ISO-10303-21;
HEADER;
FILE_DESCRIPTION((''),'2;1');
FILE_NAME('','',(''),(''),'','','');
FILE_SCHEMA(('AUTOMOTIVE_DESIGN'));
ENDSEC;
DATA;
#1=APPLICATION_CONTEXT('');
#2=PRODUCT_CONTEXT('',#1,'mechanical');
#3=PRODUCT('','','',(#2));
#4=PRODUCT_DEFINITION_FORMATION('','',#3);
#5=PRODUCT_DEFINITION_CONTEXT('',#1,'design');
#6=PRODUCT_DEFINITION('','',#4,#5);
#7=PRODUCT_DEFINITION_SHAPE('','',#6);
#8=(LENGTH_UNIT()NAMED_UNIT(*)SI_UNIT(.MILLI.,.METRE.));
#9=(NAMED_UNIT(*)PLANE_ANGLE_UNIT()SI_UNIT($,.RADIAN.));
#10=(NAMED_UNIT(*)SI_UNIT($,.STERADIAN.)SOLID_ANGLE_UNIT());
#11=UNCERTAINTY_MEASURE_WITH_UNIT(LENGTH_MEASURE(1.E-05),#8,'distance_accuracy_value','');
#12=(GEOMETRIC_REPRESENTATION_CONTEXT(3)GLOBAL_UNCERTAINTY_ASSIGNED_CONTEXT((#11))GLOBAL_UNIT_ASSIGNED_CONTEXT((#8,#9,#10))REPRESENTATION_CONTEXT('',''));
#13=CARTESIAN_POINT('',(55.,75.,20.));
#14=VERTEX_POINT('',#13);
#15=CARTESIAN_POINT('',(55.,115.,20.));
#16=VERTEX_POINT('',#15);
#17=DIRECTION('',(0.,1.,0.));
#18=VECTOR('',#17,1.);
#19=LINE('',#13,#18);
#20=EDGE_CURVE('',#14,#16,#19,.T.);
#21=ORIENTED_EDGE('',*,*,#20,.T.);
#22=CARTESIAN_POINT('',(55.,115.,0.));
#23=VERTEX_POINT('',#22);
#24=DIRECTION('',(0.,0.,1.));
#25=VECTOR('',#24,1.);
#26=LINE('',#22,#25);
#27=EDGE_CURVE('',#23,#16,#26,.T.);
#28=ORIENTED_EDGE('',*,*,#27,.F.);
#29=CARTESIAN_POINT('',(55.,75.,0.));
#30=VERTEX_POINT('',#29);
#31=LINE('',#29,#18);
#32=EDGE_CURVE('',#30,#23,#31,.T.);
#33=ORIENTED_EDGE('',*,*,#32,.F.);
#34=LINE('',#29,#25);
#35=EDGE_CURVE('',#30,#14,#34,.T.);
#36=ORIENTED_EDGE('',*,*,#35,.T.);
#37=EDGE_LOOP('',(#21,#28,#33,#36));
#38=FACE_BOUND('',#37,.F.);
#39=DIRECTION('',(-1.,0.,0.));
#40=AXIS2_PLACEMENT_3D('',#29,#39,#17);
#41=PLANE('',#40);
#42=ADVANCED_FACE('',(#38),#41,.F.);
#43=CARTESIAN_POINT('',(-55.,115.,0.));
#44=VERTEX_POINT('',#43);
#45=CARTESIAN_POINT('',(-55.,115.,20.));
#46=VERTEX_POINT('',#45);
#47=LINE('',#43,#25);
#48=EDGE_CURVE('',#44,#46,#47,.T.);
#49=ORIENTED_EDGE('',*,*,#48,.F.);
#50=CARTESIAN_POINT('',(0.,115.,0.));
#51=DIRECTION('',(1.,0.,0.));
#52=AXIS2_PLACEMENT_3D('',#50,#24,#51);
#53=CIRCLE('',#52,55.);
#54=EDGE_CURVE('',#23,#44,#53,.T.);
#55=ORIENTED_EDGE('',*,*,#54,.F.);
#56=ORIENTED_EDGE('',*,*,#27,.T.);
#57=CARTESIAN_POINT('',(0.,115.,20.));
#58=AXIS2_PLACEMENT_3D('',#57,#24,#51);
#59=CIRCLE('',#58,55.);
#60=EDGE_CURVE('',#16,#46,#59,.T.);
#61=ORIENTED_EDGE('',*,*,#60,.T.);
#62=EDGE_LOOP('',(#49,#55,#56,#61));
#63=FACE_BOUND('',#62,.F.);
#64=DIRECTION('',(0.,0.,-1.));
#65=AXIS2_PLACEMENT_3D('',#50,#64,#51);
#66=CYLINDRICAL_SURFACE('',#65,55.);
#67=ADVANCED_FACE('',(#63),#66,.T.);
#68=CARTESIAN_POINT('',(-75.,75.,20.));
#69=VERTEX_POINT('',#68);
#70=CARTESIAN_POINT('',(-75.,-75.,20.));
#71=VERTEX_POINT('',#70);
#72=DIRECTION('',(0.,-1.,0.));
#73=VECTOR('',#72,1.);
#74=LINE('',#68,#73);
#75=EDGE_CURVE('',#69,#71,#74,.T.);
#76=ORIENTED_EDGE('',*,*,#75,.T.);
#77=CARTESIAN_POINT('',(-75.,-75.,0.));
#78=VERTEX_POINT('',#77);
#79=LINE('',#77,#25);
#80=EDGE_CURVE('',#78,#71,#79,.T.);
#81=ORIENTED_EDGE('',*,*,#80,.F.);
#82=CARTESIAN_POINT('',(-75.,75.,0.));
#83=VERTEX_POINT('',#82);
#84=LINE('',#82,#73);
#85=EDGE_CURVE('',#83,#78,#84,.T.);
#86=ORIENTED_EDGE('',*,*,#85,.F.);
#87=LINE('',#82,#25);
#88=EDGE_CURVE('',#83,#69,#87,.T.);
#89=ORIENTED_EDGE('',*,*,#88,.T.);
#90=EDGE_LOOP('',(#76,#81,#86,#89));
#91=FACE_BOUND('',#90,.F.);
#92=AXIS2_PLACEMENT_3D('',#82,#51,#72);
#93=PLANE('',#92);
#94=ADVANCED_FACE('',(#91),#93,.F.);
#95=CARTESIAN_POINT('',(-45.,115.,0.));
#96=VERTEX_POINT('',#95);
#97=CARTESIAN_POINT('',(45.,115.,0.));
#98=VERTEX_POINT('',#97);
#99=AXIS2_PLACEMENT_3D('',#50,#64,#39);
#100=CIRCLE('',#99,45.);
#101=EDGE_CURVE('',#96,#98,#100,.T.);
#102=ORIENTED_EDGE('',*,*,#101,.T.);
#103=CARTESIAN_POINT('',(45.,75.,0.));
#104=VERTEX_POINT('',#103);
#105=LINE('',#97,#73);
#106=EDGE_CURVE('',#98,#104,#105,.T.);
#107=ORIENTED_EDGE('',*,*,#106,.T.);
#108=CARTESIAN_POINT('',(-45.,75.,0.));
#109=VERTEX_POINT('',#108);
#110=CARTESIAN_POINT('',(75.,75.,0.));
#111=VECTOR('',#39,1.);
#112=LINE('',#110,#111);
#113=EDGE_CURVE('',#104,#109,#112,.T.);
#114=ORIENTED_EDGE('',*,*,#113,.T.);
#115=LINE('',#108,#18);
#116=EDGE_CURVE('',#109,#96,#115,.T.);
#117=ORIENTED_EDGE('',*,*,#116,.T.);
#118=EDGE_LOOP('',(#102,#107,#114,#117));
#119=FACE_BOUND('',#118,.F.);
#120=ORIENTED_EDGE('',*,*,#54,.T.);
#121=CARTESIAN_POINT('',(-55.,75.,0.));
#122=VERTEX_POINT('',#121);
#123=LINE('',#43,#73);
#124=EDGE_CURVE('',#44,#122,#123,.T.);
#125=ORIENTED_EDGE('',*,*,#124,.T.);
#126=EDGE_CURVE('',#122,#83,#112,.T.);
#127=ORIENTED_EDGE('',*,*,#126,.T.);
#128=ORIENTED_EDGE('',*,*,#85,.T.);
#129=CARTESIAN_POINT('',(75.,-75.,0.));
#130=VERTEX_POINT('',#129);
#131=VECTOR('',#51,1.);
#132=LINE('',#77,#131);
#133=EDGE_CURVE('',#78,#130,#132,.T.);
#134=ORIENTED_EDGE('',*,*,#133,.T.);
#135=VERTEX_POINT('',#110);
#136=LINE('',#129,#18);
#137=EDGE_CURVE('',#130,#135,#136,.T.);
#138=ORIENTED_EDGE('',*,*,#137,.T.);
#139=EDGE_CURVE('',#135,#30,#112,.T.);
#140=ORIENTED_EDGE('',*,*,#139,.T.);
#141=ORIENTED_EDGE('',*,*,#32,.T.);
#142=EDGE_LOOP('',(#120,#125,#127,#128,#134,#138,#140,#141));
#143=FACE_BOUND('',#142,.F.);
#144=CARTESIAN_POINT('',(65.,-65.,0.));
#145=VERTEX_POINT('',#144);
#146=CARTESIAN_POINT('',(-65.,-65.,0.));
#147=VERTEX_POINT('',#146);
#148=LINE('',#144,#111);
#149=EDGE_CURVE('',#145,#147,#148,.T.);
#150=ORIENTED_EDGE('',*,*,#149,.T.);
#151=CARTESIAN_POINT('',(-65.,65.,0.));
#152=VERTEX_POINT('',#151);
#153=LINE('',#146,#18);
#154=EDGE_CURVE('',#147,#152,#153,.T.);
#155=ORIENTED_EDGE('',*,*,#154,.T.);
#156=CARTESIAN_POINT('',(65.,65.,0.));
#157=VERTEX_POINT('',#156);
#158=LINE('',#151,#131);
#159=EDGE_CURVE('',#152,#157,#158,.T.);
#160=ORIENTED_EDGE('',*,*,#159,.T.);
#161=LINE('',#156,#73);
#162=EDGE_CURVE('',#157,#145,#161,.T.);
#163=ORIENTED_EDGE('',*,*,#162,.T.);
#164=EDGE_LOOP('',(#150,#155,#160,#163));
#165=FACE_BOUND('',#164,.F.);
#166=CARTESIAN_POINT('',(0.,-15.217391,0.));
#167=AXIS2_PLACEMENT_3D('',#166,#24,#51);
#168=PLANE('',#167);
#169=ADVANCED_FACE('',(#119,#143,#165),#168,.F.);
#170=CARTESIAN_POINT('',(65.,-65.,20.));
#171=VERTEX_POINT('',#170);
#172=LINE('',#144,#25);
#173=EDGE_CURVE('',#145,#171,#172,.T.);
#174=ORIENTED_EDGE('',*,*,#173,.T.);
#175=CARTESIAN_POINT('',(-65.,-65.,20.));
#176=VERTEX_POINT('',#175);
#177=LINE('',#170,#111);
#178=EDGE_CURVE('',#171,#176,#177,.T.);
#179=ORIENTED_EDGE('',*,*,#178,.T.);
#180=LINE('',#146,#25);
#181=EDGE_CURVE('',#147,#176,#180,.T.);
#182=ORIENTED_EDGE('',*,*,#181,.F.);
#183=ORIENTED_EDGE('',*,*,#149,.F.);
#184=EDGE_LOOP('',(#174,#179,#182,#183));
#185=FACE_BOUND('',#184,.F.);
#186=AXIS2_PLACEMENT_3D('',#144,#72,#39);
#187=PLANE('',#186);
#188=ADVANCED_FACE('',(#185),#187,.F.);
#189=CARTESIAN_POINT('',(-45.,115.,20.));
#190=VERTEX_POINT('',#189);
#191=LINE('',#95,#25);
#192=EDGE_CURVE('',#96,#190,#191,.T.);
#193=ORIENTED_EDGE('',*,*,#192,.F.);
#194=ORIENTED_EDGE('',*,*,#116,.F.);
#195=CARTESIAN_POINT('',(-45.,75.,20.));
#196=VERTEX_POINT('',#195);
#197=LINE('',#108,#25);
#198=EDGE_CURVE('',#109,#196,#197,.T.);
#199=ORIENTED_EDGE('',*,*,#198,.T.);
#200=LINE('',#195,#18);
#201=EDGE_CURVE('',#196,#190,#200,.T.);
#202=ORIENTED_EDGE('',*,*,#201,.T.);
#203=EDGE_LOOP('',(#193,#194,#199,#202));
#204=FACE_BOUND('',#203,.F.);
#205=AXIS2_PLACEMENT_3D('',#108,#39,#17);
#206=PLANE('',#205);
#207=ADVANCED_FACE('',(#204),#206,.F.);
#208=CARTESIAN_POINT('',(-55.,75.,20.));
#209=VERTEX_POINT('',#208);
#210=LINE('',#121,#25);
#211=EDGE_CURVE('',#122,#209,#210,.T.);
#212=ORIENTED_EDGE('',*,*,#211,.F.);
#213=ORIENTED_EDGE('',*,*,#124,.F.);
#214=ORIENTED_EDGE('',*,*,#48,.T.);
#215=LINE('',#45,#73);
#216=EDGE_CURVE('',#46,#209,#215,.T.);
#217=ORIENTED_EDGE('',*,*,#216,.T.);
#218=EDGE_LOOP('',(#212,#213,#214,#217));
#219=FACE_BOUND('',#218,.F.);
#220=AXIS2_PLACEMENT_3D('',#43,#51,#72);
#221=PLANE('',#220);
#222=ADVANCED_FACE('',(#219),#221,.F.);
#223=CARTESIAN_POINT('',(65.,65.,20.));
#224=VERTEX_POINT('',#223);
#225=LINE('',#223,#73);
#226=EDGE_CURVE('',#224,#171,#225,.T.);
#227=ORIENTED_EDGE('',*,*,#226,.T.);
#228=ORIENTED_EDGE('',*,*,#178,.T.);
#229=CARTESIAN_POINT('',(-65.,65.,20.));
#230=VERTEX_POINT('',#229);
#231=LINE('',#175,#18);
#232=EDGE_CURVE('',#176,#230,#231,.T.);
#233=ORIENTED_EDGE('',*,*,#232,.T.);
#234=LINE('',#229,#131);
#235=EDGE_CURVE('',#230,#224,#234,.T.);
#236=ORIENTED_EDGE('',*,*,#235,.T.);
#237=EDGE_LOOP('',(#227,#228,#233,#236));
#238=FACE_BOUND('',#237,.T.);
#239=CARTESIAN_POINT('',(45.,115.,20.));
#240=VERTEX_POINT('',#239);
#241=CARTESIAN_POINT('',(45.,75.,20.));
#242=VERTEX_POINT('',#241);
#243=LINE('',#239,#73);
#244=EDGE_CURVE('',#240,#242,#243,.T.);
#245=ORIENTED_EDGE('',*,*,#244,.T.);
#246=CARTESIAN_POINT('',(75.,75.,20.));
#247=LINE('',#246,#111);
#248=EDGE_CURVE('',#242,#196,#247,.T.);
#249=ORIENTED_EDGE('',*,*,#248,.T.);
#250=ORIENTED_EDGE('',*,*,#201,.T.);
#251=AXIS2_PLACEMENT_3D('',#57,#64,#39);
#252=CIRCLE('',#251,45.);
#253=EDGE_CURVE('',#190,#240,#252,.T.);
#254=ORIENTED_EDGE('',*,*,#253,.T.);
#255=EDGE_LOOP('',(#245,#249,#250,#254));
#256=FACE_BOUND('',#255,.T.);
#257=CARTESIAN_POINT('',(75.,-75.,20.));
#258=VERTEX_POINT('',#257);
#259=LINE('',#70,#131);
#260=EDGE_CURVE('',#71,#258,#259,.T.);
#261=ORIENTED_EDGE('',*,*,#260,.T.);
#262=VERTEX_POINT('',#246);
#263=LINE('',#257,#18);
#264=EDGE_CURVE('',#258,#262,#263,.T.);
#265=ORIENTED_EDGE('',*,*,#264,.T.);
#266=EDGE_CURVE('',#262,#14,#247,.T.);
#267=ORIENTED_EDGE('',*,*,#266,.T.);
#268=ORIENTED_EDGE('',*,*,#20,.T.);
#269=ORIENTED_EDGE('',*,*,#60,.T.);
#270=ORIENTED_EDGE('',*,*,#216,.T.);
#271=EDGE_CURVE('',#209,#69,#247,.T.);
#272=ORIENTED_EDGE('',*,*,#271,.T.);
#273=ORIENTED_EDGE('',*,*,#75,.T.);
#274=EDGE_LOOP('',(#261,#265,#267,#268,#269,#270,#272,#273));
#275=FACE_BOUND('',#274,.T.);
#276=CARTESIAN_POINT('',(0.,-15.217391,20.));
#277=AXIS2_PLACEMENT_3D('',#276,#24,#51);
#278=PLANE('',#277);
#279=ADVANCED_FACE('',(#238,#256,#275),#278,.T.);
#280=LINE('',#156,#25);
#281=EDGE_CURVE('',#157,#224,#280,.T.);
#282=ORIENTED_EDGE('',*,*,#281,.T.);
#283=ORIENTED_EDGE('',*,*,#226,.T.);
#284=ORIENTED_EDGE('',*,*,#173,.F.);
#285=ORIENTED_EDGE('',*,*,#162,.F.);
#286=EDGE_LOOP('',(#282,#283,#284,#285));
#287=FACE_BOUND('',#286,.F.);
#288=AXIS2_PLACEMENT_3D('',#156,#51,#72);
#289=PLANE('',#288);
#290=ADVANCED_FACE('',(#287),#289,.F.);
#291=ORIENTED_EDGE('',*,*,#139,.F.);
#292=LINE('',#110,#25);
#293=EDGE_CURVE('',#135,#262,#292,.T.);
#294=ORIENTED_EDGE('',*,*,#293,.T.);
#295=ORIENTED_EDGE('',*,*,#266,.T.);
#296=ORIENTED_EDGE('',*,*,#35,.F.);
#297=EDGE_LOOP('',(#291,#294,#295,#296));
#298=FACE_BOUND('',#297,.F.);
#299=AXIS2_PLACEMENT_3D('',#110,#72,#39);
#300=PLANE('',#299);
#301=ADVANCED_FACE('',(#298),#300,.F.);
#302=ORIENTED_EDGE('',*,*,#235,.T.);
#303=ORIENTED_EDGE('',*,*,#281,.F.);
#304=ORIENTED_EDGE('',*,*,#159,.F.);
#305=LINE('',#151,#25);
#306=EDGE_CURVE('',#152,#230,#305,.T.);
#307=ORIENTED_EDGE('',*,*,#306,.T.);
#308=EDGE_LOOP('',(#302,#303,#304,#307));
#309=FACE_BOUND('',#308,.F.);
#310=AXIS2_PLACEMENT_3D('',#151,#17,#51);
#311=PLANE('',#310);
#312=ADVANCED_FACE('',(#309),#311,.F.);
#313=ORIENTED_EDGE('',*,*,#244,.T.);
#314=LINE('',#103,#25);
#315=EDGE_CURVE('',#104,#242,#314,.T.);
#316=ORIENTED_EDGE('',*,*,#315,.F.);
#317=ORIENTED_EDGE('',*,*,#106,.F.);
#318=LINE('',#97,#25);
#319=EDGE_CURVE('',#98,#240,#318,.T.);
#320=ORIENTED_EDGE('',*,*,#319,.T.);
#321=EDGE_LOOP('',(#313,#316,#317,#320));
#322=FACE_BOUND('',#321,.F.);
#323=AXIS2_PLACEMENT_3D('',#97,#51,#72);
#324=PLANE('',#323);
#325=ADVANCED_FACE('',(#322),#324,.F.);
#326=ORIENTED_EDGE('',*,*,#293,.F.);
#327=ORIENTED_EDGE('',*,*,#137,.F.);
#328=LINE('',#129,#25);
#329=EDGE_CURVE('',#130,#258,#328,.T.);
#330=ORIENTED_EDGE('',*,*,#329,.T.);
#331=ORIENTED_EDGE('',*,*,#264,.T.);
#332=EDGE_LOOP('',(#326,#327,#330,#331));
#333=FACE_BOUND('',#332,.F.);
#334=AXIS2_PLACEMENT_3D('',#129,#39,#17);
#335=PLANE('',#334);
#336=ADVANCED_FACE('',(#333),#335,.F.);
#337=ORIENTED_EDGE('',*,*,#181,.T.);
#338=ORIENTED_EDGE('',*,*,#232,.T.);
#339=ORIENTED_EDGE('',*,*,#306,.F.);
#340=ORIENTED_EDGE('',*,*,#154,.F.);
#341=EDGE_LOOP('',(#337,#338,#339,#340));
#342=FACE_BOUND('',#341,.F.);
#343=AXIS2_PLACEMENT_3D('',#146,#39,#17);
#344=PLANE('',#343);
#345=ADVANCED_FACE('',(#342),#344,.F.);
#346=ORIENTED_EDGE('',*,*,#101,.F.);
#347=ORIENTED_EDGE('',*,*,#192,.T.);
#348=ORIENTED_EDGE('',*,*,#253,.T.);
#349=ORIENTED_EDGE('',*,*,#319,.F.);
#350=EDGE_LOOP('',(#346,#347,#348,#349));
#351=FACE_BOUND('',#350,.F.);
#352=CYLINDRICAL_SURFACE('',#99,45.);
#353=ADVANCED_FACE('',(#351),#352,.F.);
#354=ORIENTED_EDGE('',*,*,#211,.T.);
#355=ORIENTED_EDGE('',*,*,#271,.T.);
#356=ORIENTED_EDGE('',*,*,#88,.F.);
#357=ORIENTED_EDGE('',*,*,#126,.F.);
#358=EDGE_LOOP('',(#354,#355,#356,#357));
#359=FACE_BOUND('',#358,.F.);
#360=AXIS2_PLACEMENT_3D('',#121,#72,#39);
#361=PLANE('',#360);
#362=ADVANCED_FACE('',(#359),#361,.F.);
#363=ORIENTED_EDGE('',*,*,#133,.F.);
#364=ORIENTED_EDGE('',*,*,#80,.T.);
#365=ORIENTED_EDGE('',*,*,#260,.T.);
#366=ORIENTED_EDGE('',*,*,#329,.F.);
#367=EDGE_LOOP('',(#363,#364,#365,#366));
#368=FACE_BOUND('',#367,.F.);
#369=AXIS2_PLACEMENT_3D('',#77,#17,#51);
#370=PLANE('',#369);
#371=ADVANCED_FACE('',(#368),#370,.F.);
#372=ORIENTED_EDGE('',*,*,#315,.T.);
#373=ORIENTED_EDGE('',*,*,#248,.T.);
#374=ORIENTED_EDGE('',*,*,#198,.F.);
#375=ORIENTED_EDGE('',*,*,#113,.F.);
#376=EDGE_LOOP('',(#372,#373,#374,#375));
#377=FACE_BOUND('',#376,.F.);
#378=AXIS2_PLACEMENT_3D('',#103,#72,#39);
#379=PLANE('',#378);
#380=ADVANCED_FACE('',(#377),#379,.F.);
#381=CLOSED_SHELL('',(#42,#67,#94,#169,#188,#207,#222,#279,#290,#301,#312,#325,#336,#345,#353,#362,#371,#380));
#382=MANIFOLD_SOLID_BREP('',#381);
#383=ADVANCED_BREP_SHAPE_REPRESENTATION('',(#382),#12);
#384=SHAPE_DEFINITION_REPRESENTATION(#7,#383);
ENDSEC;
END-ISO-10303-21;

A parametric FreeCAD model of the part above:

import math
import FreeCAD as App
import Part
import Sketcher
from FreeCAD import Vector
Q = App.Units.Quantity


def add_polygon(sketch, points):
    """Adds a closed chain of lines whose ends are joined by coincident constraints."""
    first, n = sketch.GeometryCount, len(points)
    for a, b in zip(points, points[1:] + points[:1]):
        sketch.addGeometry(Part.LineSegment(App.Vector(*a, 0), App.Vector(*b, 0)), False)
    for i in range(n):
        sketch.addConstraint(Sketcher.Constraint("Coincident", first + i, 2, first + (i + 1) % n, 1))

doc = App.newDocument("Part")
body = doc.addObject("PartDesign::Body", "Body")

sketch1 = doc.addObject("Sketcher::SketchObject", "Sketch")
body.addObject(sketch1)
sketch1.AttachmentSupport = (doc.XY_Plane, [""])
sketch1.MapMode = "FlatFace"
sketch1.addGeometry(Part.LineSegment(Vector(-75, -75, 0), Vector(75, -75, 0)), False)
sketch1.addGeometry(Part.LineSegment(Vector(75, -75, 0), Vector(75, 75, 0)), False)
sketch1.addGeometry(Part.LineSegment(Vector(75, 75, 0), Vector(55, 75, 0)), False)
sketch1.addGeometry(Part.LineSegment(Vector(55, 75, 0), Vector(55, 115, 0)), False)
sketch1.addGeometry(Part.ArcOfCircle(Part.Circle(Vector(0, 115, 0), Vector(0, 0, 1), 55), math.radians(0), math.radians(180)), False)
sketch1.addGeometry(Part.LineSegment(Vector(-55, 115, 0), Vector(-55, 75, 0)), False)
sketch1.addGeometry(Part.LineSegment(Vector(-55, 75, 0), Vector(-75, 75, 0)), False)
sketch1.addGeometry(Part.LineSegment(Vector(-75, 75, 0), Vector(-75, -75, 0)), False)
sketch1.addGeometry(Part.LineSegment(Vector(45, 115, 0), Vector(45, 75, 0)), False)
sketch1.addGeometry(Part.LineSegment(Vector(45, 75, 0), Vector(-45, 75, 0)), False)
sketch1.addGeometry(Part.LineSegment(Vector(-45, 75, 0), Vector(-45, 115, 0)), False)
sketch1.addGeometry(Part.ArcOfCircle(Part.Circle(Vector(0, 115, 0), Vector(0, 0, 1), 45), math.radians(0), math.radians(180)), False)
add_polygon(sketch1, [(65, 65), (65, -65), (-65, -65), (-65, 65)])
sketch1.addConstraint(Sketcher.Constraint("Coincident", 0, 2, 1, 1))
sketch1.addConstraint(Sketcher.Constraint("Coincident", 1, 2, 2, 1))
sketch1.addConstraint(Sketcher.Constraint("Coincident", 2, 2, 3, 1))
sketch1.addConstraint(Sketcher.Constraint("Tangent", 3, 2, 4, 1))
sketch1.addConstraint(Sketcher.Constraint("Tangent", 4, 2, 5, 1))
sketch1.addConstraint(Sketcher.Constraint("Coincident", 5, 2, 6, 1))
sketch1.addConstraint(Sketcher.Constraint("Coincident", 6, 2, 7, 1))
sketch1.addConstraint(Sketcher.Constraint("Coincident", 7, 2, 0, 1))
sketch1.addConstraint(Sketcher.Constraint("Coincident", 8, 2, 9, 1))
sketch1.addConstraint(Sketcher.Constraint("Coincident", 9, 2, 10, 1))
sketch1.addConstraint(Sketcher.Constraint("Tangent", 10, 2, 11, 2))
sketch1.addConstraint(Sketcher.Constraint("Tangent", 11, 1, 8, 1))
sketch1.addConstraint(Sketcher.Constraint("Horizontal", 0))
sketch1.addConstraint(Sketcher.Constraint("Vertical", 1))
sketch1.addConstraint(Sketcher.Constraint("Horizontal", 2))
sketch1.addConstraint(Sketcher.Constraint("Vertical", 3))
sketch1.addConstraint(Sketcher.Constraint("Vertical", 5))
sketch1.addConstraint(Sketcher.Constraint("Horizontal", 6))
sketch1.addConstraint(Sketcher.Constraint("Vertical", 7))
sketch1.addConstraint(Sketcher.Constraint("Vertical", 8))
sketch1.addConstraint(Sketcher.Constraint("Horizontal", 9))
sketch1.addConstraint(Sketcher.Constraint("Vertical", 10))
sketch1.addConstraint(Sketcher.Constraint("Vertical", 12))
sketch1.addConstraint(Sketcher.Constraint("Horizontal", 13))
sketch1.addConstraint(Sketcher.Constraint("Vertical", 14))
sketch1.addConstraint(Sketcher.Constraint("Horizontal", 15))
sketch1.addConstraint(Sketcher.Constraint("Coincident", 11, 3, 4, 3))
sketch1.addConstraint(Sketcher.Constraint("Symmetric", 0, 2, 6, 2, -1, 1))
sketch1.addConstraint(Sketcher.Constraint("Symmetric", 12, 2, 14, 2, -1, 1))
sketch1.addConstraint(Sketcher.Constraint("Symmetric", 2, 2, 5, 2, -2))
sketch1.addConstraint(Sketcher.Constraint("Horizontal", 6, 2, 8, 2))
sketch1.addConstraint(Sketcher.Constraint("Equal", 0, 1))
sketch1.addConstraint(Sketcher.Constraint("Equal", 15, 12))
sketch1.addConstraint(Sketcher.Constraint("Radius", 4, Q("55 mm")))
sketch1.addConstraint(Sketcher.Constraint("Radius", 11, Q("45 mm")))
sketch1.addConstraint(Sketcher.Constraint("DistanceX", 0, 1, 0, 2, Q("150 mm")))
sketch1.addConstraint(Sketcher.Constraint("DistanceX", 13, 2, 13, 1, Q("130 mm")))
sketch1.addConstraint(Sketcher.Constraint("DistanceY", 3, 1, 3, 2, Q("40 mm")))
pad1 = doc.addObject("PartDesign::Pad", "Pad")
body.addObject(pad1)
pad1.Profile = sketch1
pad1.Length = 20

doc.recompute()
